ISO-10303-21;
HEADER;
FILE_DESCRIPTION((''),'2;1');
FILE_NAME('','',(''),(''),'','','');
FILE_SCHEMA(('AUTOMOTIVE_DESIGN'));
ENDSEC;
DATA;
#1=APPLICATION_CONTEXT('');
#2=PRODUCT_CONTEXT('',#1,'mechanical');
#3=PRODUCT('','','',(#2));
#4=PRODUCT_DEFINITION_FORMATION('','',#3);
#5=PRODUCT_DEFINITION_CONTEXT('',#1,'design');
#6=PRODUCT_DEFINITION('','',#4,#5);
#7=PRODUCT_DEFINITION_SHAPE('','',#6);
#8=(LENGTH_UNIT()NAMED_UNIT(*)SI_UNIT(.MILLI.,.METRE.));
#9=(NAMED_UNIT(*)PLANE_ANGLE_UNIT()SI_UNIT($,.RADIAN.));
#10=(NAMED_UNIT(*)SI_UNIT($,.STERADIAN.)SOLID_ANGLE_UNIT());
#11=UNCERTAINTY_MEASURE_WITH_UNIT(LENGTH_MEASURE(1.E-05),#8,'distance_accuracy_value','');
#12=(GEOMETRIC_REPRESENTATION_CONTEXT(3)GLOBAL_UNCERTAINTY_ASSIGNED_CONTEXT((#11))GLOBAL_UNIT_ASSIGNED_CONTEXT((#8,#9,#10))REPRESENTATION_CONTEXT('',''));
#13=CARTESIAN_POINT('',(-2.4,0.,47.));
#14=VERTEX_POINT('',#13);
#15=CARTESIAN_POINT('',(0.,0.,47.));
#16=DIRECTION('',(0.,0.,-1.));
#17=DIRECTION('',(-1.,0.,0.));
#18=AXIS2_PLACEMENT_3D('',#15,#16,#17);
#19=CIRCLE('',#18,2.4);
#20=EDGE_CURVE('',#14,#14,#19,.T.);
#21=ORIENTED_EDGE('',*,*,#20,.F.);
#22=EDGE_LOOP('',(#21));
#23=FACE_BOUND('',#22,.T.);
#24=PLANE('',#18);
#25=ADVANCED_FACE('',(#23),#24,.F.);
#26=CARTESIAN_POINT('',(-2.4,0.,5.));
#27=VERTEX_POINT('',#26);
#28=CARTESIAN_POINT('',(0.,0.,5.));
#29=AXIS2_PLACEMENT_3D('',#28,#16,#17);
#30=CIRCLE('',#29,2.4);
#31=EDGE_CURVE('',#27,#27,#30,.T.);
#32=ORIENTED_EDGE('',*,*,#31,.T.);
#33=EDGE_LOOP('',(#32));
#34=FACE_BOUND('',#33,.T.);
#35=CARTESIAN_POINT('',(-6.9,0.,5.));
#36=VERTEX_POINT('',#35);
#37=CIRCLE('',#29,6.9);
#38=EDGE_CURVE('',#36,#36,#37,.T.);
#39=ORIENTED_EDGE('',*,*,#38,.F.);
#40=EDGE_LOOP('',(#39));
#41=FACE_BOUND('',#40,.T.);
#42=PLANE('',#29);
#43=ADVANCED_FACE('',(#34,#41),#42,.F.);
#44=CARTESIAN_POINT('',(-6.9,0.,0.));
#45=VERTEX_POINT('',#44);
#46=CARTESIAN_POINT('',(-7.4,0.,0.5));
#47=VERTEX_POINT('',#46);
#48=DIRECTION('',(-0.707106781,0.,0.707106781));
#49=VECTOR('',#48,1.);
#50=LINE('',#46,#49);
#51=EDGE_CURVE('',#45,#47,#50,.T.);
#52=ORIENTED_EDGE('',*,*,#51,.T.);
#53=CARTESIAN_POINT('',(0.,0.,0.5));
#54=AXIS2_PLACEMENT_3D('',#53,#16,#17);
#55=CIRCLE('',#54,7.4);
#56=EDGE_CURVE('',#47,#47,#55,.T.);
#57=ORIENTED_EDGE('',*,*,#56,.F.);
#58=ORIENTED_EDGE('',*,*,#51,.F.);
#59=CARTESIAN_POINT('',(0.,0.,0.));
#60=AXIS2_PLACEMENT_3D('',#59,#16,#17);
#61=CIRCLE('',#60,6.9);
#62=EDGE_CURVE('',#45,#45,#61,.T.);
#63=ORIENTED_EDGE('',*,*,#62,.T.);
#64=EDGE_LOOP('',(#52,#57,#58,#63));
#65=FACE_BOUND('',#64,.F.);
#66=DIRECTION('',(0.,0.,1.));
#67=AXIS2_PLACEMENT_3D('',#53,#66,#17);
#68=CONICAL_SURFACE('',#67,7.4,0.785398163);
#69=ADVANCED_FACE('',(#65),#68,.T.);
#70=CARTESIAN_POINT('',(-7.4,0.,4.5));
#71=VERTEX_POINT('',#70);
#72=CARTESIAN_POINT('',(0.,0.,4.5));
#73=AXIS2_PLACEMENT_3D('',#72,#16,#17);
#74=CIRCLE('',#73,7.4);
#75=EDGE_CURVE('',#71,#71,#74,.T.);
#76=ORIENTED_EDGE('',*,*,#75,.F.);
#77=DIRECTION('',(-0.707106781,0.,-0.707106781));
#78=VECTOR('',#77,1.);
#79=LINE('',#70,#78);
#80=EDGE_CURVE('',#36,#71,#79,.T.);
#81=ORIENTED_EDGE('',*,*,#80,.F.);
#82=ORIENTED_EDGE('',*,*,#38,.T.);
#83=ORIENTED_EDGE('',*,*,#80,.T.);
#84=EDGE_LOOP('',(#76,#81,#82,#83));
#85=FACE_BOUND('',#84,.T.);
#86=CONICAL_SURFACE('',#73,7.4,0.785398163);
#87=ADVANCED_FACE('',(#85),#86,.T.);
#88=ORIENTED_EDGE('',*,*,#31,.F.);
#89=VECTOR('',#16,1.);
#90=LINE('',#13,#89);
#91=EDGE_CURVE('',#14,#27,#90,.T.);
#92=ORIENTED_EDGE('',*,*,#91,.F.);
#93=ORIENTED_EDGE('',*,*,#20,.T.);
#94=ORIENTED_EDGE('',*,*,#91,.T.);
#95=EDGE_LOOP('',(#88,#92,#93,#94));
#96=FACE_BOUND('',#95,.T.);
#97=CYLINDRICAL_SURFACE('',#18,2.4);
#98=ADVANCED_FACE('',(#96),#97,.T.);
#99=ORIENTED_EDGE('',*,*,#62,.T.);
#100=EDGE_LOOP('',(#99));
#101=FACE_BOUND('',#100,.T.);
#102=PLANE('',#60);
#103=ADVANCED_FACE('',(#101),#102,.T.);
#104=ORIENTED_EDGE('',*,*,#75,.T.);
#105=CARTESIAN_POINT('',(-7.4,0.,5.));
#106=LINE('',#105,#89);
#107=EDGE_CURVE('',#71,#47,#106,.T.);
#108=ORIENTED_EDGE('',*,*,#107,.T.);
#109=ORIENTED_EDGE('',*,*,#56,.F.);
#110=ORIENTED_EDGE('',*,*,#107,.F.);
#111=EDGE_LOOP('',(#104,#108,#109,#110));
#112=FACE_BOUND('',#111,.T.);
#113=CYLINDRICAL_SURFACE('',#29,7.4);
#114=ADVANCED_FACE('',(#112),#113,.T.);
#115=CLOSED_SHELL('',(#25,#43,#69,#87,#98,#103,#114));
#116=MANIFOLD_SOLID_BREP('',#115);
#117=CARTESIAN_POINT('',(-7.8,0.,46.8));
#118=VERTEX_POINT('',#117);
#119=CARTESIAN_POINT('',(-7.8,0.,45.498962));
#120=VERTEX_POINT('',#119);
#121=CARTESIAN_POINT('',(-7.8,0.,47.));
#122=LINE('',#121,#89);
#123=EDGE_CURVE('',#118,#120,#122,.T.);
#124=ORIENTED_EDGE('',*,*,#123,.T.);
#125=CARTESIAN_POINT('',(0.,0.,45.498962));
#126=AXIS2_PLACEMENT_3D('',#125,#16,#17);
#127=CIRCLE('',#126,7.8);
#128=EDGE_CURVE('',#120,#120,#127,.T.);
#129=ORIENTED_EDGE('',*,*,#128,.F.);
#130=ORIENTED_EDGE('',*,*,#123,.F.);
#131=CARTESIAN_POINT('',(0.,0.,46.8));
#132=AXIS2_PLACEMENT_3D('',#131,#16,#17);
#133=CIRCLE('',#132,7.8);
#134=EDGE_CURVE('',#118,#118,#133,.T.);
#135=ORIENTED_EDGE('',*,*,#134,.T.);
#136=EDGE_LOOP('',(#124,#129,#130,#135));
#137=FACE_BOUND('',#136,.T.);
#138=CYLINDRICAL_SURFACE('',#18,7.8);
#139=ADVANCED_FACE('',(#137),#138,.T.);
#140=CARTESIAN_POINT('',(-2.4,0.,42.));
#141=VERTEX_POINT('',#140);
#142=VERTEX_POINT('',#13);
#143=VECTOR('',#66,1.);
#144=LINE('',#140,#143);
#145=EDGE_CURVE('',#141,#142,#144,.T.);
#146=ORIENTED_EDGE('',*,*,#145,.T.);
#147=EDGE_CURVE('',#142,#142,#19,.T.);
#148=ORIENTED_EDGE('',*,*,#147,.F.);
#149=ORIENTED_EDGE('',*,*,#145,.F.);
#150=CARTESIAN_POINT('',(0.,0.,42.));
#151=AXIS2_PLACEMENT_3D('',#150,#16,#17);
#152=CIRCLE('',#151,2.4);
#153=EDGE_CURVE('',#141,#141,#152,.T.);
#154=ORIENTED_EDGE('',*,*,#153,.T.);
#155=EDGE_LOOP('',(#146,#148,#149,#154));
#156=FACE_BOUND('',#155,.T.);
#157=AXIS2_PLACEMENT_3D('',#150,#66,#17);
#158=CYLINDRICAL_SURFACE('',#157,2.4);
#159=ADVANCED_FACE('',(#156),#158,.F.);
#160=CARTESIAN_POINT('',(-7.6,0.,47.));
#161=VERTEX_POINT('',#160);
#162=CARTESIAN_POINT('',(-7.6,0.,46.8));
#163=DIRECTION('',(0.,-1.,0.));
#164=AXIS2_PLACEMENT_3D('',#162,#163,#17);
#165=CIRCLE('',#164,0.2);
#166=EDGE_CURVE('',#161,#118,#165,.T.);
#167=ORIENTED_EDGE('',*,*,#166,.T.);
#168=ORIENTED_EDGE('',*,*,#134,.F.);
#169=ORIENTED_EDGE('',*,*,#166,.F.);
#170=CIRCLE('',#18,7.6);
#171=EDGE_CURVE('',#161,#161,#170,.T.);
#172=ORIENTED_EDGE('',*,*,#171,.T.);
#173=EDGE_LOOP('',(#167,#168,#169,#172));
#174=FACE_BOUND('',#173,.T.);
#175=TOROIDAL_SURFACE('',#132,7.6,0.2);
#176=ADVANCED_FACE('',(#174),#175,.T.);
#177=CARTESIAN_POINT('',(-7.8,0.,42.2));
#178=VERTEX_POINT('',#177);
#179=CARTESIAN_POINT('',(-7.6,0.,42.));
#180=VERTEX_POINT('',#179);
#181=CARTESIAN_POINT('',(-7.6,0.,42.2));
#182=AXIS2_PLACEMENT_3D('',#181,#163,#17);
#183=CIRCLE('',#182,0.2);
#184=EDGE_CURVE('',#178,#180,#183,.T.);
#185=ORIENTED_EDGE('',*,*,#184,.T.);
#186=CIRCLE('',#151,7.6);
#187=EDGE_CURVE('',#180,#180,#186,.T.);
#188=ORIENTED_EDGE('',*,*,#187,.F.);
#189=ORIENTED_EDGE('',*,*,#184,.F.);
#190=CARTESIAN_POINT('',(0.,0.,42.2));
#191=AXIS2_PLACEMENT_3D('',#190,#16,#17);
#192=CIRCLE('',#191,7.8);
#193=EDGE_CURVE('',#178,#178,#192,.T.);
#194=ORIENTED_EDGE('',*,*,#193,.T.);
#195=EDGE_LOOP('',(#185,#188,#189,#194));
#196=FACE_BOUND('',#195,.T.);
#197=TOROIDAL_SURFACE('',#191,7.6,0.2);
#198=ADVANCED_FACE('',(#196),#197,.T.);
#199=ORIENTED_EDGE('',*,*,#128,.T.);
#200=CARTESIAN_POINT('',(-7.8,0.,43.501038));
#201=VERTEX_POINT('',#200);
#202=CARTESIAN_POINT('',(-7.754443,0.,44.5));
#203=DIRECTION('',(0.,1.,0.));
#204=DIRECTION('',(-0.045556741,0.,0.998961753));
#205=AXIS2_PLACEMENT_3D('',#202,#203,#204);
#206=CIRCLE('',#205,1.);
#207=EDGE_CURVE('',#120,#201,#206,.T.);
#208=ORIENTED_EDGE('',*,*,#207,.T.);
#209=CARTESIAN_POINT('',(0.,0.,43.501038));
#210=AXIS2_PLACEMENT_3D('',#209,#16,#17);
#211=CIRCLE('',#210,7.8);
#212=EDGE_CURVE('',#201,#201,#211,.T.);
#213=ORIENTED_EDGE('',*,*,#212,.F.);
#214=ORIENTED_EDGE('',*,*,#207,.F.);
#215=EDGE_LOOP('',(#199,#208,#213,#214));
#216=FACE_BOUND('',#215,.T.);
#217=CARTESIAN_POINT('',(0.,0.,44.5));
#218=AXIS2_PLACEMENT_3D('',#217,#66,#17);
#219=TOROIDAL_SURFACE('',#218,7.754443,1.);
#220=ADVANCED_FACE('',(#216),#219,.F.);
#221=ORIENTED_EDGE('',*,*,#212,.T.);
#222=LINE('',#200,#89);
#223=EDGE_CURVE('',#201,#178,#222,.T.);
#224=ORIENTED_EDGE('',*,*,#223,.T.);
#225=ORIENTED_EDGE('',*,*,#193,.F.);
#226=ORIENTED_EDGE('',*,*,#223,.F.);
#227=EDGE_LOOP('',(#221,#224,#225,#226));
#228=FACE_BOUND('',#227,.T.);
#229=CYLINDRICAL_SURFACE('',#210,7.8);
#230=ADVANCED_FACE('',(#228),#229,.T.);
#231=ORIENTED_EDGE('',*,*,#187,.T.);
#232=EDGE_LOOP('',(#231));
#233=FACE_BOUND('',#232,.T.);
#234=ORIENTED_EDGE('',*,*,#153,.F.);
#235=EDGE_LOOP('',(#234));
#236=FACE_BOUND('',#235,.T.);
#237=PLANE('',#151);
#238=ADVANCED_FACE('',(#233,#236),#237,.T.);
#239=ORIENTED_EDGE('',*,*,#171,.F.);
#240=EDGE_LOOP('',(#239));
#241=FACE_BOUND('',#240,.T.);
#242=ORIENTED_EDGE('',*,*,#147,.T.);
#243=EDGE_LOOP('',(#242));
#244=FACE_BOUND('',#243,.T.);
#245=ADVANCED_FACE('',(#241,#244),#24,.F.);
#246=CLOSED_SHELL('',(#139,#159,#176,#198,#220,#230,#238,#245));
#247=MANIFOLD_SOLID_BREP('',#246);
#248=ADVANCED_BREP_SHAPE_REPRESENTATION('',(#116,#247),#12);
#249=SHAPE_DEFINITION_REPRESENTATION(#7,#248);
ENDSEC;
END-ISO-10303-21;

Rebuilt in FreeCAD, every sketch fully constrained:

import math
import FreeCAD as App
import Part
import Sketcher


def edges_at(feature, points):
    """Names of the edges that pass closest to the given points."""
    edges = feature.Shape.Edges
    near = lambda p: min(range(len(edges)), key=lambda i: edges[i].distToShape(Part.Vertex(*p))[0])
    return sorted({f"Edge{near(p) + 1}" for p in points})


def add_polygon(sketch, points):
    """Adds a closed chain of lines whose ends are joined by coincident constraints."""
    first, n = sketch.GeometryCount, len(points)
    for a, b in zip(points, points[1:] + points[:1]):
        sketch.addGeometry(Part.LineSegment(App.Vector(*a, 0), App.Vector(*b, 0)), False)
    for i in range(n):
        sketch.addConstraint(Sketcher.Constraint("Coincident", first + i, 2, first + (i + 1) % n, 1))

doc = App.newDocument("Part")
body = doc.addObject("PartDesign::Body", "Body")

# Sketch on XZ plane
sketch1 = body.newObject("Sketcher::SketchObject", "Sketch")
sketch1.AttachmentSupport = (doc.getObject("XZ_Plane"), [""])
sketch1.MapMode = "FlatFace"
add_polygon(sketch1, [(-7.4, 0), (0, 0), (0, 47), (-2.4, 47), (-2.4, 5), (-7.4, 5)])  # lines 0-5
sketch1.addConstraint([
    Sketcher.Constraint("Horizontal", 0),
    Sketcher.Constraint("Vertical", 1),
    Sketcher.Constraint("Horizontal", 2),
    Sketcher.Constraint("Vertical", 3),
    Sketcher.Constraint("Horizontal", 4),
    Sketcher.Constraint("Vertical", 5),
    Sketcher.Constraint("Coincident", 0, 2, -1, 1),
    Sketcher.Constraint("Equal", 4, 5),
    Sketcher.Constraint("DistanceX", 4, 2, 4, 1, 5.0),
    Sketcher.Constraint("DistanceY", 1, 1, 1, 2, 47.0),
    Sketcher.Constraint("DistanceX", 0, 1, 0, 2, 7.4),
])
revolution = body.newObject("PartDesign::Revolution", "Revolution")
revolution.Profile = sketch1
revolution.ReferenceAxis = (sketch1, ["V_Axis"])
revolution.Angle = 360
doc.recompute()

chamfer = body.newObject("PartDesign::Chamfer", "Chamfer")
chamfer.Base = (revolution, edges_at(revolution, [(7.4, 0, 5), (7.4, 0, 0)]))
chamfer.Size = 0.5
body2 = doc.addObject("PartDesign::Body", "Body001")

# Sketch on XZ plane
sketch2 = body2.newObject("Sketcher::SketchObject", "Sketch001")
sketch2.AttachmentSupport = (doc.getObject("XZ_Plane001"), [""])
sketch2.MapMode = "FlatFace"
sketch2.addGeometry([
    Part.LineSegment(App.Vector(-2.4, 42, 0), App.Vector(-2.4, 47, 0)),  # 0
    Part.LineSegment(App.Vector(-2.4, 47, 0), App.Vector(-7.8, 47, 0)),  # 1
    Part.LineSegment(App.Vector(-7.8, 47, 0), App.Vector(-7.8, 45.5, 0)),  # 2
    Part.ArcOfCircle(Part.Circle(App.Vector(-7.8, 44.5, 0), App.Vector(0, 0, 1), 1), math.radians(-93), math.radians(93)),  # 3
    Part.LineSegment(App.Vector(-7.8, 43.5, 0), App.Vector(-7.8, 42, 0)),  # 4
    Part.LineSegment(App.Vector(-7.8, 42, 0), App.Vector(-2.4, 42, 0)),  # 5
], False)
sketch2.addConstraint([
    Sketcher.Constraint("Coincident", 0, 2, 1, 1),
    Sketcher.Constraint("Coincident", 1, 2, 2, 1),
    Sketcher.Constraint("Coincident", 2, 2, 3, 2),
    Sketcher.Constraint("Coincident", 3, 1, 4, 1),
    Sketcher.Constraint("Coincident", 4, 2, 5, 1),
    Sketcher.Constraint("Coincident", 5, 2, 0, 1),
    Sketcher.Constraint("Vertical", 0),
    Sketcher.Constraint("Horizontal", 1),
    Sketcher.Constraint("Vertical", 2),
    Sketcher.Constraint("Vertical", 4),
    Sketcher.Constraint("Horizontal", 5),
    Sketcher.Constraint("Vertical", 2, 2, 3, 1),
    Sketcher.Constraint("Equal", 2, 4),
    Sketcher.Constraint("Radius", 3, 1.0),
    Sketcher.Constraint("DistanceY", 0, 1, 0, 2, 5.0),
    Sketcher.Constraint("DistanceX", 1, 2, 1, 1, 5.4),
    Sketcher.Constraint("DistanceY", -1, 1, 0, 2, 47.0),
    Sketcher.Constraint("DistanceX", 0, 2, -1, 1, 2.4),
    Sketcher.Constraint("DistanceY", 2, 2, 2, 1, 1.501038),
])
revolution2 = body2.newObject("PartDesign::Revolution", "Revolution001")
revolution2.Profile = sketch2
revolution2.ReferenceAxis = (sketch2, ["V_Axis"])
revolution2.Angle = 360
doc.recompute()

fillet = body2.newObject("PartDesign::Fillet", "Fillet")
fillet.Base = (revolution2, edges_at(revolution2, [(7.8, 0, 47), (7.8, 0, 42)]))
fillet.Radius = 0.2

doc.recompute()
